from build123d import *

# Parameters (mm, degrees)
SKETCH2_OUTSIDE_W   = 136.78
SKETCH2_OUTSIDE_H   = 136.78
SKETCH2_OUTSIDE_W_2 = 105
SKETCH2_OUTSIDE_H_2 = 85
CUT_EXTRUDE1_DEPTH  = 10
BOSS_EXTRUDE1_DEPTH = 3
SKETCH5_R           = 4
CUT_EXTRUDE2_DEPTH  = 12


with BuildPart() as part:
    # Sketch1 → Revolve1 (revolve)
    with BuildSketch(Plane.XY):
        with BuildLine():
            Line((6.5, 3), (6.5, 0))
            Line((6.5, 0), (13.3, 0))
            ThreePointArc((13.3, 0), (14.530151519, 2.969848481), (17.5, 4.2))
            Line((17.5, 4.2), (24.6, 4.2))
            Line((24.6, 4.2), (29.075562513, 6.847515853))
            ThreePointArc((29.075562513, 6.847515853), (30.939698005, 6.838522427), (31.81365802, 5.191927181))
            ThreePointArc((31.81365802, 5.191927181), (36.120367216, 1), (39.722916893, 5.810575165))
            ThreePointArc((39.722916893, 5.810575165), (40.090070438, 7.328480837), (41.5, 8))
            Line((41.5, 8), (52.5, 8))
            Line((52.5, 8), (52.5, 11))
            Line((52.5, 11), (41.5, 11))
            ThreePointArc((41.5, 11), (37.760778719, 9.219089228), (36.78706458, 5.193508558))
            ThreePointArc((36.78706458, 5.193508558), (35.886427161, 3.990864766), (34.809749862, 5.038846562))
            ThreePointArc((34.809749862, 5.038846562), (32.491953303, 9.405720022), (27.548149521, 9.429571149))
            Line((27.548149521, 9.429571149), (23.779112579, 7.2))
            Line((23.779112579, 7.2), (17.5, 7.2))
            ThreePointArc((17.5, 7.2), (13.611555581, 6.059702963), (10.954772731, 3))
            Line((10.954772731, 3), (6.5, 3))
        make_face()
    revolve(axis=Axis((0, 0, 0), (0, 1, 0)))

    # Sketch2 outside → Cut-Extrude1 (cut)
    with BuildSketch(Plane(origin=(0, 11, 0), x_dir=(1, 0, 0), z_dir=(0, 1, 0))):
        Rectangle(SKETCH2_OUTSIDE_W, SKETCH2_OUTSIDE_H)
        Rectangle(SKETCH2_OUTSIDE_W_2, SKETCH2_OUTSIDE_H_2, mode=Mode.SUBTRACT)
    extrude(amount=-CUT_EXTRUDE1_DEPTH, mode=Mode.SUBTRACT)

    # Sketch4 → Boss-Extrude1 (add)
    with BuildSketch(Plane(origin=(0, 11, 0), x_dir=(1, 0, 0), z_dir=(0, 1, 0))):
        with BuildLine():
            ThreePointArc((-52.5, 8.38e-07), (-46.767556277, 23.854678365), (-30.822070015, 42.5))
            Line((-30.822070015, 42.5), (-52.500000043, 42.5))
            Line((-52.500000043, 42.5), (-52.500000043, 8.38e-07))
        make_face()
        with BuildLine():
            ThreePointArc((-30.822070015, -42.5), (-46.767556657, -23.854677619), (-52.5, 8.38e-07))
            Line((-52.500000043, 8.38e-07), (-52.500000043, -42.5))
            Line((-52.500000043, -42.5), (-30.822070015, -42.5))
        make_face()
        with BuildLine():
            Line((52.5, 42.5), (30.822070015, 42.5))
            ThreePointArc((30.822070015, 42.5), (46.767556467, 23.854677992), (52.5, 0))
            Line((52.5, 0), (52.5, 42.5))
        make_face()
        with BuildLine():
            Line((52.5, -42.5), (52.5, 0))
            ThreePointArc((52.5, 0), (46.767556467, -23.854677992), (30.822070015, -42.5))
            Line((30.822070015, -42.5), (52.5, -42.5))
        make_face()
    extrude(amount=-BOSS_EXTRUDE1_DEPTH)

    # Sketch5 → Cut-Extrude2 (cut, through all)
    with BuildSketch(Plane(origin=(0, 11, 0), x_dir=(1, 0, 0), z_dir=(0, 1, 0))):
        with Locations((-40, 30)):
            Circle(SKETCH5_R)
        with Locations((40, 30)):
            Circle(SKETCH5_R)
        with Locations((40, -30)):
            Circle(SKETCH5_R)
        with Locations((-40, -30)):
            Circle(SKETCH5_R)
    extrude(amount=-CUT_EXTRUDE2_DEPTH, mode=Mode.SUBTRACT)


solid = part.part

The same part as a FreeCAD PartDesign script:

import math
import FreeCAD as App
import Part
import Sketcher


def add_polygon(sketch, points):
    """Adds a closed chain of lines whose ends are joined by coincident constraints."""
    first, n = sketch.GeometryCount, len(points)
    for a, b in zip(points, points[1:] + points[:1]):
        sketch.addGeometry(Part.LineSegment(App.Vector(*a, 0), App.Vector(*b, 0)), False)
    for i in range(n):
        sketch.addConstraint(Sketcher.Constraint("Coincident", first + i, 2, first + (i + 1) % n, 1))

doc = App.newDocument("Part")
body = doc.addObject("PartDesign::Body", "Body")

# Sketch on XY plane
sketch1 = body.newObject("Sketcher::SketchObject", "Sketch")
sketch1.AttachmentSupport = (doc.getObject("XY_Plane"), [""])
sketch1.MapMode = "FlatFace"
sketch1.addGeometry([
    Part.LineSegment(App.Vector(6.5, 3, 0), App.Vector(6.5, 0, 0)),  # 0
    Part.LineSegment(App.Vector(6.5, 0, 0), App.Vector(13.3, 0, 0)),  # 1
    Part.ArcOfCircle(Part.Circle(App.Vector(17.5, 0, 0), App.Vector(0, 0, 1), 4.2), math.radians(90), math.radians(180)),  # 2
    Part.LineSegment(App.Vector(17.5, 4.2, 0), App.Vector(24.6, 4.2, 0)),  # 3
    Part.LineSegment(App.Vector(24.6, 4.2, 0), App.Vector(29.1, 6.8, 0)),  # 4
    Part.ArcOfCircle(Part.Circle(App.Vector(30, 5.3, 0), App.Vector(0, 0, 1), 1.8), math.radians(-3), math.radians(121)),  # 5
    Part.ArcOfCircle(Part.Circle(App.Vector(35.8, 5, 0), App.Vector(0, 0, 1), 4), math.radians(177), math.radians(372)),  # 6
    Part.ArcOfCircle(Part.Circle(App.Vector(41.5, 6.2, 0), App.Vector(0, 0, 1), 1.8), math.radians(90), math.radians(192)),  # 7
    Part.LineSegment(App.Vector(41.5, 8, 0), App.Vector(52.5, 8, 0)),  # 8
    Part.LineSegment(App.Vector(52.5, 8, 0), App.Vector(52.5, 11, 0)),  # 9
    Part.LineSegment(App.Vector(52.5, 11, 0), App.Vector(41.5, 11, 0)),  # 10
    Part.ArcOfCircle(Part.Circle(App.Vector(41.5, 6.2, 0), App.Vector(0, 0, 1), 4.8), math.radians(90), math.radians(192)),  # 11
    Part.ArcOfCircle(Part.Circle(App.Vector(35.8, 5, 0), App.Vector(0, 0, 1), 1), math.radians(177), math.radians(372)),  # 12
    Part.ArcOfCircle(Part.Circle(App.Vector(30, 5.3, 0), App.Vector(0, 0, 1), 4.8), math.radians(-3), math.radians(121)),  # 13
    Part.LineSegment(App.Vector(27.5, 9.4, 0), App.Vector(23.8, 7.2, 0)),  # 14
    Part.LineSegment(App.Vector(23.8, 7.2, 0), App.Vector(17.5, 7.2, 0)),  # 15
    Part.ArcOfCircle(Part.Circle(App.Vector(17.5, 0, 0), App.Vector(0, 0, 1), 7.2), math.radians(90), math.radians(155)),  # 16
    Part.LineSegment(App.Vector(11, 3, 0), App.Vector(6.5, 3, 0)),  # 17
], False)
sketch1.addConstraint([
    Sketcher.Constraint("Coincident", 0, 2, 1, 1),
    Sketcher.Constraint("Coincident", 1, 2, 2, 2),
    Sketcher.Constraint("Tangent", 2, 1, 3, 1),
    Sketcher.Constraint("Coincident", 3, 2, 4, 1),
    Sketcher.Constraint("Tangent", 4, 2, 5, 2),
    Sketcher.Constraint("Tangent", 5, 1, 6, 1),
    Sketcher.Constraint("Tangent", 6, 2, 7, 2),
    Sketcher.Constraint("Tangent", 7, 1, 8, 1),
    Sketcher.Constraint("Coincident", 8, 2, 9, 1),
    Sketcher.Constraint("Coincident", 9, 2, 10, 1),
    Sketcher.Constraint("Tangent", 10, 2, 11, 1),
    Sketcher.Constraint("Tangent", 11, 2, 12, 2),
    Sketcher.Constraint("Tangent", 12, 1, 13, 1),
    Sketcher.Constraint("Tangent", 13, 2, 14, 1),
    Sketcher.Constraint("Coincident", 14, 2, 15, 1),
    Sketcher.Constraint("Tangent", 15, 2, 16, 1),
    Sketcher.Constraint("Coincident", 16, 2, 17, 1),
    Sketcher.Constraint("Coincident", 17, 2, 0, 1),
    Sketcher.Constraint("Vertical", 0),
    Sketcher.Constraint("Horizontal", 1),
    Sketcher.Constraint("Horizontal", 3),
    Sketcher.Constraint("Horizontal", 8),
    Sketcher.Constraint("Vertical", 9),
    Sketcher.Constraint("Horizontal", 10),
    Sketcher.Constraint("Horizontal", 15),
    Sketcher.Constraint("Horizontal", 17),
    Sketcher.Constraint("Coincident", 11, 3, 7, 3),
    Sketcher.Constraint("Coincident", 12, 3, 6, 3),
    Sketcher.Constraint("Coincident", 13, 3, 5, 3),
    Sketcher.Constraint("Coincident", 16, 3, 2, 3),
    Sketcher.Constraint("Equal", 5, 7),
    Sketcher.Constraint("PointOnObject", 2, 3, -1),
    Sketcher.Constraint("PointOnObject", 0, 2, -1),
    Sketcher.Constraint("Parallel", 4, 14),
    Sketcher.Constraint("Equal", 0, 9),
    Sketcher.Constraint("Radius", 6, 4.0),
    Sketcher.Constraint("Radius", 12, 1.0),
    Sketcher.Constraint("Radius", 2, 4.2),
    Sketcher.Constraint("Radius", 16, 7.2),
    Sketcher.Constraint("DistanceX", 8, 1, 8, 2, 11.0),
    Sketcher.Constraint("DistanceX", 1, 1, 1, 2, 6.8),
    Sketcher.Constraint("DistanceX", 3, 1, 3, 2, 7.1),
    Sketcher.Constraint("DistanceY", -1, 1, 7, 1, 8.0),
    Sketcher.Constraint("DistanceX", 2, 3, 7, 3, 24.0),
    Sketcher.Constraint("Distance", 4, 5.2),
    Sketcher.Constraint("DistanceX", -1, 1, 2, 3, 17.5),
    Sketcher.Constraint("Radius", 5, 1.815912),
    Sketcher.Constraint("DistanceX", 14, 2, 5, 3, 6.220999),
])
revolution = body.newObject("PartDesign::Revolution", "Revolution")
revolution.Profile = sketch1
revolution.ReferenceAxis = (sketch1, ["V_Axis"])
revolution.Angle = 360

# Sketch on XZ plane
sketch2 = body.newObject("Sketcher::SketchObject", "Sketch001")
sketch2.AttachmentSupport = (doc.getObject("XZ_Plane"), [""])
sketch2.MapMode = "FlatFace"
sketch2.AttachmentOffset = App.Placement(App.Vector(0, 0, -11), App.Rotation())
add_polygon(sketch2, [(-68, -68), (-68, 68), (68, 68), (68, -68)])  # lines 0-3
add_polygon(sketch2, [(52, 42), (-52, 42), (-52, -42), (52, -42)])  # lines 4-7
sketch2.addConstraint([
    Sketcher.Constraint("Vertical", 0),
    Sketcher.Constraint("Horizontal", 1),
    Sketcher.Constraint("Vertical", 2),
    Sketcher.Constraint("Horizontal", 3),
    Sketcher.Constraint("Horizontal", 4),
    Sketcher.Constraint("Vertical", 5),
    Sketcher.Constraint("Horizontal", 6),
    Sketcher.Constraint("Vertical", 7),
    Sketcher.Constraint("Symmetric", 0, 2, 2, 2, -1, 1),
    Sketcher.Constraint("Symmetric", 4, 2, 6, 2, -1, 1),
    Sketcher.Constraint("Equal", 3, 0),
    Sketcher.Constraint("DistanceX", 4, 2, 4, 1, 105.0),
    Sketcher.Constraint("DistanceY", 5, 2, 5, 1, 85.0),
    Sketcher.Constraint("DistanceX", 1, 1, 1, 2, 136.78),
])
pocket1 = body.newObject("PartDesign::Pocket", "Pocket")
pocket1.Profile = sketch2
pocket1.Length = 10
pocket1.Reversed = True

# Sketch on XZ plane
sketch3 = body.newObject("Sketcher::SketchObject", "Sketch002")
sketch3.AttachmentSupport = (doc.getObject("XZ_Plane"), [""])
sketch3.MapMode = "FlatFace"
sketch3.AttachmentOffset = App.Placement(App.Vector(0, 0, -11), App.Rotation())
sketch3.addGeometry([
    Part.ArcOfCircle(Part.Circle(App.Vector(0, 0, 0), App.Vector(0, 0, 1), 52), math.radians(-180), math.radians(-126)),  # 0
    Part.LineSegment(App.Vector(-31, -42, 0), App.Vector(-53, -42, 0)),  # 1
    Part.LineSegment(App.Vector(-53, -42, 0), App.Vector(-53, 0, 0)),  # 2
    Part.ArcOfCircle(Part.Circle(App.Vector(0, 0, 0), App.Vector(0, 0, 1), 53), math.radians(126), math.radians(180)),  # 3
    Part.LineSegment(App.Vector(-53, 0, 0), App.Vector(-53, 42, 0)),  # 4
    Part.LineSegment(App.Vector(-53, 42, 0), App.Vector(-31, 42, 0)),  # 5
    Part.LineSegment(App.Vector(52, -42, 0), App.Vector(31, -42, 0)),  # 6
    Part.ArcOfCircle(Part.Circle(App.Vector(0, 0, 0), App.Vector(0, 0, 1), 53), math.radians(-54), math.radians(0)),  # 7
    Part.LineSegment(App.Vector(52, 0, 0), App.Vector(52, -42, 0)),  # 8
    Part.LineSegment(App.Vector(52, 42, 0), App.Vector(52, 0, 0)),  # 9
    Part.ArcOfCircle(Part.Circle(App.Vector(0, 0, 0), App.Vector(0, 0, 1), 53), math.radians(0), math.radians(54)),  # 10
    Part.LineSegment(App.Vector(31, 42, 0), App.Vector(52, 42, 0)),  # 11
], False)
sketch3.addConstraint([
    Sketcher.Constraint("Coincident", 0, 2, 1, 1),
    Sketcher.Constraint("Coincident", 1, 2, 2, 1),
    Sketcher.Constraint("Tangent", 2, 2, 0, 1),
    Sketcher.Constraint("Tangent", 3, 2, 4, 1),
    Sketcher.Constraint("Coincident", 4, 2, 5, 1),
    Sketcher.Constraint("Coincident", 5, 2, 3, 1),
    Sketcher.Constraint("Coincident", 6, 2, 7, 1),
    Sketcher.Constraint("Tangent", 7, 2, 8, 1),
    Sketcher.Constraint("Coincident", 8, 2, 6, 1),
    Sketcher.Constraint("Tangent", 9, 2, 10, 1),
    Sketcher.Constraint("Coincident", 10, 2, 11, 1),
    Sketcher.Constraint("Coincident", 11, 2, 9, 1),
    Sketcher.Constraint("Horizontal", 1),
    Sketcher.Constraint("Vertical", 2),
    Sketcher.Constraint("Vertical", 4),
    Sketcher.Constraint("Horizontal", 5),
    Sketcher.Constraint("Horizontal", 6),
    Sketcher.Constraint("Vertical", 8),
    Sketcher.Constraint("Vertical", 9),
    Sketcher.Constraint("Horizontal", 11),
    Sketcher.Constraint("Coincident", 0, 3, -1, 1),
    Sketcher.Constraint("Coincident", 3, 3, -1, 1),
    Sketcher.Constraint("Coincident", 7, 3, -1, 1),
    Sketcher.Constraint("Coincident", 10, 3, -1, 1),
    Sketcher.Constraint("Equal", 0, 3),
    Sketcher.Constraint("Equal", 3, 7),
    Sketcher.Constraint("Equal", 7, 10),
    Sketcher.Constraint("Horizontal", 1, 2, 6, 2),
    Sketcher.Constraint("Horizontal", 5, 2, 10, 2),
    Sketcher.Constraint("Vertical", 0, 2, 5, 2),
    Sketcher.Constraint("Radius", 0, 52.5),
    Sketcher.Constraint("DistanceY", 2, 1, 2, 2, 42.499999),
])
pad1 = body.newObject("PartDesign::Pad", "Pad")
pad1.Profile = sketch3
pad1.Length = 3

# Sketch on XZ plane
sketch4 = body.newObject("Sketcher::SketchObject", "Sketch003")
sketch4.AttachmentSupport = (doc.getObject("XZ_Plane"), [""])
sketch4.MapMode = "FlatFace"
sketch4.AttachmentOffset = App.Placement(App.Vector(0, 0, -11), App.Rotation())
sketch4.addGeometry([
    Part.Circle(App.Vector(-40, -30, 0), App.Vector(0, 0, 1), 4),
    Part.Circle(App.Vector(40, -30, 0), App.Vector(0, 0, 1), 4),
    Part.Circle(App.Vector(40, 30, 0), App.Vector(0, 0, 1), 4),
    Part.Circle(App.Vector(-40, 30, 0), App.Vector(0, 0, 1), 4),
], False)
sketch4.addConstraint([
    Sketcher.Constraint("Equal", 0, 1),
    Sketcher.Constraint("Equal", 1, 2),
    Sketcher.Constraint("Equal", 2, 3),
    Sketcher.Constraint("Symmetric", 0, 3, 2, 3, -1, 1),
    Sketcher.Constraint("Symmetric", 1, 3, 3, 3, -1, 1),
    Sketcher.Constraint("Symmetric", 0, 3, 1, 3, -2),
    Sketcher.Constraint("Diameter", 0, 8.0),
    Sketcher.Constraint("DistanceX", 0, 3, -1, 1, 40.0),
    Sketcher.Constraint("DistanceY", 0, 3, -1, 1, 30.0),
])
pocket2 = body.newObject("PartDesign::Pocket", "Pocket001")
pocket2.Profile = sketch4
pocket2.Type = "ThroughAll"
pocket2.Reversed = True

doc.recompute()
